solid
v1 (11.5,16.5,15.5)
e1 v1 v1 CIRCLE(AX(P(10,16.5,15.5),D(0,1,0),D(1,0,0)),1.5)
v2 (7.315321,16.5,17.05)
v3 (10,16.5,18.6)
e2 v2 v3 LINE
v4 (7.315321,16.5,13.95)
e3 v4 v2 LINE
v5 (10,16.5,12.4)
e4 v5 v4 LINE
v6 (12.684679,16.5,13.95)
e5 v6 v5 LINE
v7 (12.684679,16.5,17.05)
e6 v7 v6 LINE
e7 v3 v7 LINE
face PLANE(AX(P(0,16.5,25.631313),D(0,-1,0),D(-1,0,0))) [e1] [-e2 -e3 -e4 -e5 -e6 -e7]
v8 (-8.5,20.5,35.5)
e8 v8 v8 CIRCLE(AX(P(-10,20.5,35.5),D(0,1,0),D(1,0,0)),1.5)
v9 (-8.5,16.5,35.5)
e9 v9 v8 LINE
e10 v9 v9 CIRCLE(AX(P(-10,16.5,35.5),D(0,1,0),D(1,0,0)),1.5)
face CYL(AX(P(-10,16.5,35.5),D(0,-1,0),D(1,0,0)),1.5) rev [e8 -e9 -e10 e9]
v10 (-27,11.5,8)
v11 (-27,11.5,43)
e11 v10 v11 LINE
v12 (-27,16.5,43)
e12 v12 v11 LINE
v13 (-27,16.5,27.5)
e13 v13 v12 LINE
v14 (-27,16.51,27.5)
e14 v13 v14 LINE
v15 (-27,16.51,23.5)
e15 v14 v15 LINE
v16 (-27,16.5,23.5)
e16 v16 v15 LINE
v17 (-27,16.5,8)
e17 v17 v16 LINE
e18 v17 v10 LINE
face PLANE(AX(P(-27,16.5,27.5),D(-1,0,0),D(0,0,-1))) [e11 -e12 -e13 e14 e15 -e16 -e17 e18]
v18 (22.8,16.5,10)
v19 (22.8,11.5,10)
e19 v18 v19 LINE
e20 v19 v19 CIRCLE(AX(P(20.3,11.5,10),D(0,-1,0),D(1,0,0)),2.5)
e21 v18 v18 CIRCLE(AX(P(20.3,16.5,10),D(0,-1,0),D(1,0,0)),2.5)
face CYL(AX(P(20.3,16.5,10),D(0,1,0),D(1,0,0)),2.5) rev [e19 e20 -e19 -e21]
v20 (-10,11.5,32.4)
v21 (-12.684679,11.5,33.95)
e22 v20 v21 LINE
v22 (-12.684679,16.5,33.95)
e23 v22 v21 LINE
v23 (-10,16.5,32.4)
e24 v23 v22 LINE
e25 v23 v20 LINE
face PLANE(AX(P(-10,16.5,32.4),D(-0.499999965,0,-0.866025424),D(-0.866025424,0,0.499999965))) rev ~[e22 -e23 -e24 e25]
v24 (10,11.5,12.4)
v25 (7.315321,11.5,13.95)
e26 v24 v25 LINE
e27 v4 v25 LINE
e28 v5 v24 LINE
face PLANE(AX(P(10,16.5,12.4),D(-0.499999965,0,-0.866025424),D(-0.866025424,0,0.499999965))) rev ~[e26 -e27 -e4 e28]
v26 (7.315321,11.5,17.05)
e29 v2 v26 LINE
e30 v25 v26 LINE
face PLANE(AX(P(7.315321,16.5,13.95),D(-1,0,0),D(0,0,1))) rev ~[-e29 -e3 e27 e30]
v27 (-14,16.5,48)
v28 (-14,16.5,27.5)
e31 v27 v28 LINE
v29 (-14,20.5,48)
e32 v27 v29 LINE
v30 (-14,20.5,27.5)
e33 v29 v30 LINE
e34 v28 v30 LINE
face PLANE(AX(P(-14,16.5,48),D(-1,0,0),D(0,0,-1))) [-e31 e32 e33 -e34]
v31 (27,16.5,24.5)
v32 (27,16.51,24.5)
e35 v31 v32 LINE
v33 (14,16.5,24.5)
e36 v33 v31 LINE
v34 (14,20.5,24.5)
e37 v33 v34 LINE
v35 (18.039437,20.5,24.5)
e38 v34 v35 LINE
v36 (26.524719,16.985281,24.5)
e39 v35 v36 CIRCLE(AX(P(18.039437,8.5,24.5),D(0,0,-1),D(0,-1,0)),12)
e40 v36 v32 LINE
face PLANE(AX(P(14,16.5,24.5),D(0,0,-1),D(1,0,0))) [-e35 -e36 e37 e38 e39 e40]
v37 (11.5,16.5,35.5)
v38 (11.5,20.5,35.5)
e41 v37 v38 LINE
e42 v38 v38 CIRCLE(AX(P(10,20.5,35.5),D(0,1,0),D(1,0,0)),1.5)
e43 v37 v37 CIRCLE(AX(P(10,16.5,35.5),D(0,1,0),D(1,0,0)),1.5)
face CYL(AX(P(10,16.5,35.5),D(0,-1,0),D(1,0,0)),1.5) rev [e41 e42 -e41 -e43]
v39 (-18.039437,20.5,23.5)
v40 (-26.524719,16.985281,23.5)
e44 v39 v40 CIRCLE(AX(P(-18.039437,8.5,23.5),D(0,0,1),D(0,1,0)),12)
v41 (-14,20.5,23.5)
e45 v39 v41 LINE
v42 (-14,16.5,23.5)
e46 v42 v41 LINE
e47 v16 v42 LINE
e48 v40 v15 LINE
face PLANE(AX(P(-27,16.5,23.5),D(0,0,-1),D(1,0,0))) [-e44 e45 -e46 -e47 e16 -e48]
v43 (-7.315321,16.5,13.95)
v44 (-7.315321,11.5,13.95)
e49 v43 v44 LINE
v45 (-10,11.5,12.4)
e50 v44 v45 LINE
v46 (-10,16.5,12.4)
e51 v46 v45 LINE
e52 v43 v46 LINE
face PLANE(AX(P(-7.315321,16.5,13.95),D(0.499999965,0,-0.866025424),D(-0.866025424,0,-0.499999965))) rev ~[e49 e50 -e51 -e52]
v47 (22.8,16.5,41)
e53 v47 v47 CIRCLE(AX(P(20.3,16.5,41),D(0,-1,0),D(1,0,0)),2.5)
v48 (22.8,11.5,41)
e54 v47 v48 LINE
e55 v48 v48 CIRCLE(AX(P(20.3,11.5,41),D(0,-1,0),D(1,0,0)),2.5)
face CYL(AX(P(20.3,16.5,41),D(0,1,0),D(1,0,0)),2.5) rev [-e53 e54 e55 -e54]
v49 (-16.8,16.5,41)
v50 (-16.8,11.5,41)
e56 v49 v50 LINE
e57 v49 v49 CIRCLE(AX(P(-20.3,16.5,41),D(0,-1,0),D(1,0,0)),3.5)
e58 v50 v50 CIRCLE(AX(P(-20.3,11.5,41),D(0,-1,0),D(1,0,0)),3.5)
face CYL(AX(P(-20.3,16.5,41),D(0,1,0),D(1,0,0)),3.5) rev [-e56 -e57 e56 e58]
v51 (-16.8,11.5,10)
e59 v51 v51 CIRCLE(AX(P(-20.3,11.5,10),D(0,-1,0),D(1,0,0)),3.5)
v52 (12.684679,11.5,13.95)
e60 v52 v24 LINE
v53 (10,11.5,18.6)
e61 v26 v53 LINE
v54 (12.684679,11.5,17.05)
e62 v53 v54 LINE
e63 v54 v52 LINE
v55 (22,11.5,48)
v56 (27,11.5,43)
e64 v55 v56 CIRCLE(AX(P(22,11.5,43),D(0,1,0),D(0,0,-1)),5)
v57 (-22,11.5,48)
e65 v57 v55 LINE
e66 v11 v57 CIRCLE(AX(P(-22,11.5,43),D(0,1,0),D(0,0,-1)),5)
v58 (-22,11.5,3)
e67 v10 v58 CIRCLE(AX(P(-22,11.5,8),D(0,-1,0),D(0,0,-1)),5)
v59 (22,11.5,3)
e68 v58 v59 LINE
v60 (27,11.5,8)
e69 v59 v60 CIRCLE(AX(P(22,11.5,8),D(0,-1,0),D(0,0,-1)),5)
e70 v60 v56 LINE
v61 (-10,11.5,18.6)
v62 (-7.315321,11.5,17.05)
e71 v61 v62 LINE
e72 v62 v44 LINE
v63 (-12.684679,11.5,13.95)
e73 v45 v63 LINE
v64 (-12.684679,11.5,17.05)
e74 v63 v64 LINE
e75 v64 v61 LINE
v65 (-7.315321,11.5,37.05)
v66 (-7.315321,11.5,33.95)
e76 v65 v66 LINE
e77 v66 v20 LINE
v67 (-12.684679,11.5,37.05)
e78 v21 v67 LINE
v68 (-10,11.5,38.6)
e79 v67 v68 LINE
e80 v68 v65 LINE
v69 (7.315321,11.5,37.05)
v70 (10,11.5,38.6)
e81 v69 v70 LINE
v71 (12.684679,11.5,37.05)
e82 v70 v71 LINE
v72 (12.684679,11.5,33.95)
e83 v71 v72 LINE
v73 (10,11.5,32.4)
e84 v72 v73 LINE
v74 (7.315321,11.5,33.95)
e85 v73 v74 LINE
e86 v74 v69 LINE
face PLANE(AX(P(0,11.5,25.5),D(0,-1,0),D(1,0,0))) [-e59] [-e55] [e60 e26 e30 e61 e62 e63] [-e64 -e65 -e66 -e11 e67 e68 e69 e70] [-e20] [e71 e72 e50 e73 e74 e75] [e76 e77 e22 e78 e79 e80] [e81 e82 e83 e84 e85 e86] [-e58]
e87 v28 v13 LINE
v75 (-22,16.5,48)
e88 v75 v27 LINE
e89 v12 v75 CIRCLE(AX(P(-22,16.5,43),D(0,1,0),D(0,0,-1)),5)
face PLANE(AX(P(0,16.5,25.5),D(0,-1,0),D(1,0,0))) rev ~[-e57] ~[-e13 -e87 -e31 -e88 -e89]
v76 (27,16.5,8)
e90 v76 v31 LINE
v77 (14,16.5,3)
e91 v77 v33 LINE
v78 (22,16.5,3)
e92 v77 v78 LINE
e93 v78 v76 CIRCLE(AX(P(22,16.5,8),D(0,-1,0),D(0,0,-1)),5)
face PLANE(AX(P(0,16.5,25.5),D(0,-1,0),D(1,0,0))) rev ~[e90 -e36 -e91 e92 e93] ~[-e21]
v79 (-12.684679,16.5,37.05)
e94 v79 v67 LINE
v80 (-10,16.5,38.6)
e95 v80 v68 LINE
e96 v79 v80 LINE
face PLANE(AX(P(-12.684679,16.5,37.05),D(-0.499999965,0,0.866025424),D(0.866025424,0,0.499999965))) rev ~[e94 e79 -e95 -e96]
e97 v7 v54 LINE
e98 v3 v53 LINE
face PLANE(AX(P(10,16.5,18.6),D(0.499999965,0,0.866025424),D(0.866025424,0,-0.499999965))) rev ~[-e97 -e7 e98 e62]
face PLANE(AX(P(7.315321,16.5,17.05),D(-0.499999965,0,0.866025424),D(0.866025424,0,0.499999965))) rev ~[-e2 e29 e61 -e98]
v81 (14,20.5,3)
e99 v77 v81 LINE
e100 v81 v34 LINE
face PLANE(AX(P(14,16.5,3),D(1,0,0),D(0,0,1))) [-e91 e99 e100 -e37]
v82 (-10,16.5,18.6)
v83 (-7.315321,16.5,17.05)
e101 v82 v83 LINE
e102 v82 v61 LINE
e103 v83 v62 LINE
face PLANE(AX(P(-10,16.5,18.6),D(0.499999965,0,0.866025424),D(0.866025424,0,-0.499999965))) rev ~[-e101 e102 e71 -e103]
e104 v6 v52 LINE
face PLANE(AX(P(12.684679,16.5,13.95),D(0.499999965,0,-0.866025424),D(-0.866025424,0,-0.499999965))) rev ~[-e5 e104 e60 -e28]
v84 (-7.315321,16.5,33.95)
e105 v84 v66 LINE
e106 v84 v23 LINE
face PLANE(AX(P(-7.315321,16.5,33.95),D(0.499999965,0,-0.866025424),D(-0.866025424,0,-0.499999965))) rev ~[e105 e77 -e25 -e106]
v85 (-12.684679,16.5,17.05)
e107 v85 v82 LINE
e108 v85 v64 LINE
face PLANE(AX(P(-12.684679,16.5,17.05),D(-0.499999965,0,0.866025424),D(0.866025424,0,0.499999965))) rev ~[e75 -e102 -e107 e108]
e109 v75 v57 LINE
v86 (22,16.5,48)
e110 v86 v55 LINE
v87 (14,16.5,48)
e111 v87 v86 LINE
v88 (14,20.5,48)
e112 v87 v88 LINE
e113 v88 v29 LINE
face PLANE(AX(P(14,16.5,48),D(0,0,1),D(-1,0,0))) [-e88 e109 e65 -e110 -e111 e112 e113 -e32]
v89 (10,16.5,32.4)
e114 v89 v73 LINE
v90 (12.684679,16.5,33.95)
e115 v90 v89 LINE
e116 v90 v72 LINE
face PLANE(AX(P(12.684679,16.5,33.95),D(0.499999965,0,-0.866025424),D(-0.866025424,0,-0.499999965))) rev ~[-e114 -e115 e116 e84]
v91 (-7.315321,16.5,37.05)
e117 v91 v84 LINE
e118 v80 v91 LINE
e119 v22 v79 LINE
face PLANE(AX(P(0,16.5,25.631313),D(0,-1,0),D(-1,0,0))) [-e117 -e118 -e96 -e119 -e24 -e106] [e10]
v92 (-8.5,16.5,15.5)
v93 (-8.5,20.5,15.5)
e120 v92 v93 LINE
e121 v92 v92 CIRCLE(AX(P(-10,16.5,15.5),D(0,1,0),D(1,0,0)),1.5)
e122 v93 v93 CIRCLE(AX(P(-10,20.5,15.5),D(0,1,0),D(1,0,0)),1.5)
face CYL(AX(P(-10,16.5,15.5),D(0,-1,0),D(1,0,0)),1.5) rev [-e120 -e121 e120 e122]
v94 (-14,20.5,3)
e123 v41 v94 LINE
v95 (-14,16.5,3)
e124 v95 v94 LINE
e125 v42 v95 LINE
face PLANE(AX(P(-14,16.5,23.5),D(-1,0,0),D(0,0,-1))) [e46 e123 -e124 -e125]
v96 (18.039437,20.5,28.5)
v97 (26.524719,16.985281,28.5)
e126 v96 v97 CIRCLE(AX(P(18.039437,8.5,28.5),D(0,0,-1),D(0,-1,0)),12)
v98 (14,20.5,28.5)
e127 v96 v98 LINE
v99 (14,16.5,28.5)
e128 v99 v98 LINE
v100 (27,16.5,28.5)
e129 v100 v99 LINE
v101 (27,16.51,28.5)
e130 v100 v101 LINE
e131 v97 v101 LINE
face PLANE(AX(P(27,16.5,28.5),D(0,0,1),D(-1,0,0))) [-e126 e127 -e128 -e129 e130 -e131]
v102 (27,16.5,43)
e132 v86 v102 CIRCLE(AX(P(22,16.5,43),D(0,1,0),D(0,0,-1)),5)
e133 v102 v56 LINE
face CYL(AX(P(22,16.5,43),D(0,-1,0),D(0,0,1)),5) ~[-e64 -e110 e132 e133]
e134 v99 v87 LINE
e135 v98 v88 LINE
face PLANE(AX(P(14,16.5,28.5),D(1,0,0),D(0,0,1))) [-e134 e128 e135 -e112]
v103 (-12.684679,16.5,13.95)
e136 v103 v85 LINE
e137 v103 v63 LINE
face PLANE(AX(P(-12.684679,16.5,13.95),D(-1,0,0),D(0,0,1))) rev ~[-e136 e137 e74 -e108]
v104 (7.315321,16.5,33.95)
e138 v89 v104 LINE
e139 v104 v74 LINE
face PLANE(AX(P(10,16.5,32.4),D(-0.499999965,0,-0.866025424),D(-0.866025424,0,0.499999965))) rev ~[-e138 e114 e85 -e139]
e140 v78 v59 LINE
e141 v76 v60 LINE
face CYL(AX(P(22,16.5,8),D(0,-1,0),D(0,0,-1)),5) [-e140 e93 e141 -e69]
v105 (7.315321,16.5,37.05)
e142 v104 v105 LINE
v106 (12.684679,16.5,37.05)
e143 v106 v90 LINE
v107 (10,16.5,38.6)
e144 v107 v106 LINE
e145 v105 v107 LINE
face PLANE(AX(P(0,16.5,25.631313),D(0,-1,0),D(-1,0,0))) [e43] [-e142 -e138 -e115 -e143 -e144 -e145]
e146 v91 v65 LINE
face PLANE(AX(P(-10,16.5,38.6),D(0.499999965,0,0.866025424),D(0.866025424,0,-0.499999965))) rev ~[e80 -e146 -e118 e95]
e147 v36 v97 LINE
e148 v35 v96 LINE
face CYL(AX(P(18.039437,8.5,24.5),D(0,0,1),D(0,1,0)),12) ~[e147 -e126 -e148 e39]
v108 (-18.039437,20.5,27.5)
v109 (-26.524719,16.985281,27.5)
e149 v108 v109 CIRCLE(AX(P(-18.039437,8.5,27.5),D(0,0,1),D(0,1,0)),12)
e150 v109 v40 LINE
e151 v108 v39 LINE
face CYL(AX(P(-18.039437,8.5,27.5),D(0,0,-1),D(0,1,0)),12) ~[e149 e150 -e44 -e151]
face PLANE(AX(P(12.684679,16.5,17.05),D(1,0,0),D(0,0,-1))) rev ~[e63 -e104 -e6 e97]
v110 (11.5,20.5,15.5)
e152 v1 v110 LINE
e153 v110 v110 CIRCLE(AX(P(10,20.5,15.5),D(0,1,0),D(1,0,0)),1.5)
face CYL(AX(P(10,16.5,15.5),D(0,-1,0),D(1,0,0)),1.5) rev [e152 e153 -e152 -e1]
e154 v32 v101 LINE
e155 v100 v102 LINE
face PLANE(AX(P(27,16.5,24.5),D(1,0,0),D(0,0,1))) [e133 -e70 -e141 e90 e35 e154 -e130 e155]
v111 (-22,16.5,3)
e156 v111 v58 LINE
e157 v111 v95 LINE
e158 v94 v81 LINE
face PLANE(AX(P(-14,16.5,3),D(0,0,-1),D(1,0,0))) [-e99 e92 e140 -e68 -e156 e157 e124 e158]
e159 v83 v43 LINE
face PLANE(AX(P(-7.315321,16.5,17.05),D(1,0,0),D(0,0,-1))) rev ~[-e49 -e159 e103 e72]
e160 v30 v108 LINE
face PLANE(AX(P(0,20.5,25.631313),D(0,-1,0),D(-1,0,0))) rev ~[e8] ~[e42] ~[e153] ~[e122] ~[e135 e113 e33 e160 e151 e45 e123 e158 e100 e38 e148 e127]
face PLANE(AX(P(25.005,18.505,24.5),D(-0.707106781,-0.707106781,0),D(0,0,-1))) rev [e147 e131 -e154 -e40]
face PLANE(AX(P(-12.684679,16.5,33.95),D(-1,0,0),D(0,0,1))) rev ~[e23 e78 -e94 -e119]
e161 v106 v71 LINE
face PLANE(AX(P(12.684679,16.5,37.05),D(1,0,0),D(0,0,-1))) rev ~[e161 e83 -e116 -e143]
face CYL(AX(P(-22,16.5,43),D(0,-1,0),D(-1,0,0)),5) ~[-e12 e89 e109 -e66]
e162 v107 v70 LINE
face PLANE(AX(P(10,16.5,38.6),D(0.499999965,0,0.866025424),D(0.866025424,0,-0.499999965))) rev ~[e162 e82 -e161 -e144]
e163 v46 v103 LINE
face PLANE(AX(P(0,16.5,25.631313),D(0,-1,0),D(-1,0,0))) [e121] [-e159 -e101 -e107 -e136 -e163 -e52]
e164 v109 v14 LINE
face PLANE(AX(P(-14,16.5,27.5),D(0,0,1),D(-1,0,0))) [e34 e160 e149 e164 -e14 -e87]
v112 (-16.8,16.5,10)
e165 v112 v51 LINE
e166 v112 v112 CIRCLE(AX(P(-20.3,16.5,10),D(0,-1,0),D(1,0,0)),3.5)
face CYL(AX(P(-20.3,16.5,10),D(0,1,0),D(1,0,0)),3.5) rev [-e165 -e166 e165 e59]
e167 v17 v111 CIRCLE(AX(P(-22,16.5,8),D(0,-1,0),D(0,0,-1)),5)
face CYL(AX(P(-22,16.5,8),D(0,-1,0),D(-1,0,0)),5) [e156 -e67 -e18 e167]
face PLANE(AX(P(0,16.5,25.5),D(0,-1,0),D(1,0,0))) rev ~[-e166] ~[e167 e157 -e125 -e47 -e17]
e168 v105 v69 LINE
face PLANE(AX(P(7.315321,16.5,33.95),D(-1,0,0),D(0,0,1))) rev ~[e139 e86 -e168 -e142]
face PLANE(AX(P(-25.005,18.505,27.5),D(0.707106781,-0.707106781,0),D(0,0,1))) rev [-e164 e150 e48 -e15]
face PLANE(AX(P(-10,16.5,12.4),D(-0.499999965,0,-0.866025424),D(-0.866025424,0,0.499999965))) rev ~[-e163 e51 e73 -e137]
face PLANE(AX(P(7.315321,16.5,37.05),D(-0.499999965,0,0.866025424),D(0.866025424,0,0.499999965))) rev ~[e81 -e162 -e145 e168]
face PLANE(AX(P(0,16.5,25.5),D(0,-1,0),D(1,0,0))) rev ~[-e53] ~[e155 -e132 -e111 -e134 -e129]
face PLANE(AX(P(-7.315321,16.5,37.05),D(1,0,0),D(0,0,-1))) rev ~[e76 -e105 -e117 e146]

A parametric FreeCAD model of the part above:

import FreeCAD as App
import Part
import Sketcher

V = App.Vector
Q = App.Units.Quantity


def edges_at(feature, points):
    """Names of the edges that pass closest to the given points."""
    edges = feature.Shape.Edges
    near = lambda p: min(range(len(edges)), key=lambda i: edges[i].distToShape(Part.Vertex(*p))[0])
    return sorted({f"Edge{near(p) + 1}" for p in points})


def add_polygon(sketch, points):
    """Adds a closed chain of lines whose ends are joined by coincident constraints."""
    first, n = sketch.GeometryCount, len(points)
    for a, b in zip(points, points[1:] + points[:1]):
        sketch.addGeometry(Part.LineSegment(App.Vector(*a, 0), App.Vector(*b, 0)), False)
    for i in range(n):
        sketch.addConstraint(Sketcher.Constraint("Coincident", first + i, 2, first + (i + 1) % n, 1))

doc = App.newDocument("Part")
body = doc.addObject("PartDesign::Body", "Body")

# Sketch on XZ plane
sketch1 = body.newObject("Sketcher::SketchObject", "Sketch")
sketch1.AttachmentSupport = (doc.getObject("XZ_Plane"), [""])
sketch1.MapMode = "FlatFace"
add_polygon(sketch1, [(-27, 48), (-27, 3), (27, 3), (27, 48)])  # lines 0-3
sketch1.addGeometry(Part.Circle(V(-20.3, 10, 0), V(0, 0, 1), 3.5), False)  # 4
sketch1.addGeometry(Part.Circle(V(20.3, 10, 0), V(0, 0, 1), 2.5), False)  # 5
sketch1.addGeometry(Part.Circle(V(-20.3, 41, 0), V(0, 0, 1), 3.5), False)  # 6
sketch1.addGeometry(Part.Circle(V(20.3, 41, 0), V(0, 0, 1), 2.5), False)  # 7
sketch1.addConstraint([
    Sketcher.Constraint("Vertical", 0),
    Sketcher.Constraint("Horizontal", 1),
    Sketcher.Constraint("Vertical", 2),
    Sketcher.Constraint("Horizontal", 3),
    Sketcher.Constraint("Equal", 4, 6),
    Sketcher.Constraint("Equal", 5, 7),
    Sketcher.Constraint("Symmetric", 4, 3, 5, 3, -2),
    Sketcher.Constraint("Symmetric", 6, 3, 7, 3, -2),
    Sketcher.Constraint("Vertical", 4, 3, 6, 3),
    Sketcher.Constraint("Diameter", 4, Q("7 mm")),
    Sketcher.Constraint("Diameter", 5, Q("5 mm")),
    Sketcher.Constraint("DistanceX", 1, 1, 1, 2, Q("54 mm")),
    Sketcher.Constraint("DistanceY", 0, 2, 0, 1, Q("45 mm")),
    Sketcher.Constraint("DistanceY", -1, 1, 4, 3, Q("10 mm")),
    Sketcher.Constraint("DistanceY", -1, 1, 6, 3, Q("41 mm")),
    Sketcher.Constraint("DistanceX", 0, 2, -1, 1, Q("27 mm")),
    Sketcher.Constraint("DistanceY", -1, 1, 0, 2, Q("3 mm")),
    Sketcher.Constraint("DistanceX", 4, 3, -1, 1, Q("20.3 mm")),
])
pad1 = body.newObject("PartDesign::Pad", "Pad")
pad1.Profile = sketch1
pad1.Length = 5
doc.recompute()

fillet = body.newObject("PartDesign::Fillet", "Fillet")
fillet.Base = (pad1, edges_at(pad1, [
    (-27, -2.5, 48),
    (-27, -2.5, 3),
    (27, -2.5, 48),
    (27, -2.5, 3),
]))
fillet.Radius = 5

# Sketch on XZ plane
sketch2 = body.newObject("Sketcher::SketchObject", "Sketch001")
sketch2.AttachmentSupport = (doc.getObject("XZ_Plane"), [""])
sketch2.MapMode = "FlatFace"
add_polygon(sketch2, [(-7.315321, 17.05), (-7.315321, 13.95), (-10, 12.4), (-12.684679, 13.95), (-12.684679, 17.05), (-10, 18.6)])  # lines 0-5
add_polygon(sketch2, [(-7.315321, 33.95), (-10, 32.4), (-12.684679, 33.95), (-12.684679, 37.05), (-10, 38.6), (-7.315321, 37.05)])  # lines 6-11
add_polygon(sketch2, [(12.684679, 37.05), (12.684679, 33.95), (10, 32.4), (7.315321, 33.95), (7.315321, 37.05), (10, 38.6)])  # lines 12-17
add_polygon(sketch2, [(12.684679, 17.05), (12.684679, 13.95), (10, 12.4), (7.315321, 13.95), (7.315321, 17.05), (10, 18.6)])  # lines 18-23
sketch2.addConstraint([
    Sketcher.Constraint("Vertical", 0),
    Sketcher.Constraint("Vertical", 3),
    Sketcher.Constraint("Vertical", 8),
    Sketcher.Constraint("Vertical", 11),
    Sketcher.Constraint("Vertical", 12),
    Sketcher.Constraint("Vertical", 15),
    Sketcher.Constraint("Vertical", 18),
    Sketcher.Constraint("Vertical", 21),
    Sketcher.Constraint("Symmetric", 7, 2, 12, 2, -2),
    Sketcher.Constraint("Symmetric", 6, 2, 13, 2, -2),
    Sketcher.Constraint("Symmetric", 11, 2, 14, 2, -2),
    Sketcher.Constraint("Symmetric", 9, 2, 16, 2, -2),
    Sketcher.Constraint("Symmetric", 2, 2, 18, 2, -2),
    Sketcher.Constraint("Symmetric", 1, 2, 19, 2, -2),
    Sketcher.Constraint("Symmetric", 0, 2, 20, 2, -2),
    Sketcher.Constraint("Symmetric", 4, 2, 22, 2, -2),
    Sketcher.Constraint("Parallel", 1, 4),
    Sketcher.Constraint("Parallel", 2, 5),
    Sketcher.Constraint("Parallel", 4, 6),
    Sketcher.Constraint("Parallel", 5, 7),
    Sketcher.Constraint("Parallel", 6, 9),
    Sketcher.Constraint("Parallel", 7, 10),
    Sketcher.Constraint("Parallel", 9, 13),
    Sketcher.Constraint("Parallel", 13, 16),
    Sketcher.Constraint("Parallel", 14, 17),
    Sketcher.Constraint("Parallel", 19, 22),
    Sketcher.Constraint("Parallel", 20, 23),
    Sketcher.Constraint("Horizontal", 0, 2, 2, 2),
    Sketcher.Constraint("Horizontal", 3, 2, 5, 2),
    Sketcher.Constraint("Horizontal", 8, 2, 10, 2),
    Sketcher.Constraint("Horizontal", 7, 2, 11, 2),
    Sketcher.Constraint("Vertical", 4, 2, 6, 2),
    Sketcher.Constraint("Vertical", 3, 2, 7, 2),
    Sketcher.Constraint("Equal", 3, 8),
    Sketcher.Constraint("Angle", 1, Q("-150.000002 deg")),
    Sketcher.Constraint("DistanceY", 0, 2, 0, 1, Q("3.1 mm")),
    Sketcher.Constraint("DistanceX", 1, 2, -1, 1, Q("10 mm")),
    Sketcher.Constraint("DistanceY", 2, 2, 7, 2, Q("20 mm")),
    Sketcher.Constraint("Distance", 1, Q("3.1 mm")),
    Sketcher.Constraint("DistanceY", -1, 1, 1, 2, Q("12.4 mm")),
])
pocket1 = body.newObject("PartDesign::Pocket", "Pocket")
pocket1.Profile = sketch2
pocket1.Length = 5
pocket1.Reversed = True

# Sketch on XZ plane
sketch3 = body.newObject("Sketcher::SketchObject", "Sketch002")
sketch3.AttachmentSupport = (doc.getObject("XZ_Plane"), [""])
sketch3.MapMode = "FlatFace"
add_polygon(sketch3, [(14, 3), (-14, 3), (-14, 23.5), (-27, 23.5), (-27, 27.5), (-14, 27.5), (-14, 48), (14, 48), (14, 28.5), (27, 28.5), (27, 24.5), (14, 24.5)])  # lines 0-11
sketch3.addGeometry(Part.Circle(V(10, 35.5, 0), V(0, 0, 1), 1.5), False)  # 12
sketch3.addGeometry(Part.Circle(V(-10, 35.5, 0), V(0, 0, 1), 1.5), False)  # 13
sketch3.addGeometry(Part.Circle(V(10, 15.5, 0), V(0, 0, 1), 1.5), False)  # 14
sketch3.addGeometry(Part.Circle(V(-10, 15.5, 0), V(0, 0, 1), 1.5), False)  # 15
sketch3.addConstraint([
    Sketcher.Constraint("Horizontal", 0),
    Sketcher.Constraint("Vertical", 1),
    Sketcher.Constraint("Horizontal", 2),
    Sketcher.Constraint("Vertical", 3),
    Sketcher.Constraint("Horizontal", 4),
    Sketcher.Constraint("Vertical", 5),
    Sketcher.Constraint("Horizontal", 6),
    Sketcher.Constraint("Vertical", 7),
    Sketcher.Constraint("Horizontal", 8),
    Sketcher.Constraint("Vertical", 9),
    Sketcher.Constraint("Horizontal", 10),
    Sketcher.Constraint("Vertical", 11),
    Sketcher.Constraint("Equal", 12, 13),
    Sketcher.Constraint("Equal", 13, 14),
    Sketcher.Constraint("Equal", 14, 15),
    Sketcher.Constraint("Symmetric", 12, 3, 13, 3, -2),
    Sketcher.Constraint("Symmetric", 14, 3, 15, 3, -2),
    Sketcher.Constraint("Vertical", 12, 3, 14, 3),
    Sketcher.Constraint("Vertical", 1, 2, 4, 2),
    Sketcher.Constraint("Vertical", 7, 2, 10, 2),
    Sketcher.Constraint("Equal", 4, 8),
    Sketcher.Constraint("Equal", 1, 5),
    Sketcher.Constraint("Equal", 3, 9),
    Sketcher.Constraint("Diameter", 12, Q("3 mm")),
    Sketcher.Constraint("DistanceX", 0, 2, 0, 1, Q("28 mm")),
    Sketcher.Constraint("DistanceX", 2, 2, 2, 1, Q("13 mm")),
    Sketcher.Constraint("DistanceY", 3, 1, 3, 2, Q("4 mm")),
    Sketcher.Constraint("DistanceY", 1, 1, 1, 2, Q("20.5 mm")),
    Sketcher.Constraint("DistanceY", 7, 2, 7, 1, Q("19.5 mm")),
    Sketcher.Constraint("DistanceX", -1, 1, 12, 3, Q("10 mm")),
    Sketcher.Constraint("DistanceX", 0, 2, -1, 1, Q("14 mm")),
    Sketcher.Constraint("DistanceY", -1, 1, 0, 2, Q("3 mm")),
    Sketcher.Constraint("DistanceY", 14, 3, 12, 3, Q("20 mm")),
    Sketcher.Constraint("DistanceY", 15, 3, 1, 2, Q("8 mm")),
])
pad2 = body.newObject("PartDesign::Pad", "Pad001")
pad2.Profile = sketch3
pad2.Length = 4
pad2.Reversed = True
doc.recompute()

chamfer = body.newObject("PartDesign::Chamfer", "Chamfer")
chamfer.Base = (pad2, edges_at(pad2, [(27, 4, 26.5), (-27, 4, 25.5)]))
chamfer.Size = 3.99
doc.recompute()

fillet2 = body.newObject("PartDesign::Fillet", "Fillet001")
fillet2.Base = (chamfer, edges_at(chamfer, [(23.01, 4, 26.5), (-23.01, 4, 25.5)]))
fillet2.Radius = 12
body2 = doc.addObject("PartDesign::Body", "Body001")
doc.recompute()

body.Placement = App.Placement(V(0, 16.5, 0), App.Rotation(V(0, 0, 1), 0))
boolean = body2.newObject("PartDesign::Boolean", "Boolean")
boolean.Type = "Fuse"
boolean.addObjects([body])

doc.recompute()
